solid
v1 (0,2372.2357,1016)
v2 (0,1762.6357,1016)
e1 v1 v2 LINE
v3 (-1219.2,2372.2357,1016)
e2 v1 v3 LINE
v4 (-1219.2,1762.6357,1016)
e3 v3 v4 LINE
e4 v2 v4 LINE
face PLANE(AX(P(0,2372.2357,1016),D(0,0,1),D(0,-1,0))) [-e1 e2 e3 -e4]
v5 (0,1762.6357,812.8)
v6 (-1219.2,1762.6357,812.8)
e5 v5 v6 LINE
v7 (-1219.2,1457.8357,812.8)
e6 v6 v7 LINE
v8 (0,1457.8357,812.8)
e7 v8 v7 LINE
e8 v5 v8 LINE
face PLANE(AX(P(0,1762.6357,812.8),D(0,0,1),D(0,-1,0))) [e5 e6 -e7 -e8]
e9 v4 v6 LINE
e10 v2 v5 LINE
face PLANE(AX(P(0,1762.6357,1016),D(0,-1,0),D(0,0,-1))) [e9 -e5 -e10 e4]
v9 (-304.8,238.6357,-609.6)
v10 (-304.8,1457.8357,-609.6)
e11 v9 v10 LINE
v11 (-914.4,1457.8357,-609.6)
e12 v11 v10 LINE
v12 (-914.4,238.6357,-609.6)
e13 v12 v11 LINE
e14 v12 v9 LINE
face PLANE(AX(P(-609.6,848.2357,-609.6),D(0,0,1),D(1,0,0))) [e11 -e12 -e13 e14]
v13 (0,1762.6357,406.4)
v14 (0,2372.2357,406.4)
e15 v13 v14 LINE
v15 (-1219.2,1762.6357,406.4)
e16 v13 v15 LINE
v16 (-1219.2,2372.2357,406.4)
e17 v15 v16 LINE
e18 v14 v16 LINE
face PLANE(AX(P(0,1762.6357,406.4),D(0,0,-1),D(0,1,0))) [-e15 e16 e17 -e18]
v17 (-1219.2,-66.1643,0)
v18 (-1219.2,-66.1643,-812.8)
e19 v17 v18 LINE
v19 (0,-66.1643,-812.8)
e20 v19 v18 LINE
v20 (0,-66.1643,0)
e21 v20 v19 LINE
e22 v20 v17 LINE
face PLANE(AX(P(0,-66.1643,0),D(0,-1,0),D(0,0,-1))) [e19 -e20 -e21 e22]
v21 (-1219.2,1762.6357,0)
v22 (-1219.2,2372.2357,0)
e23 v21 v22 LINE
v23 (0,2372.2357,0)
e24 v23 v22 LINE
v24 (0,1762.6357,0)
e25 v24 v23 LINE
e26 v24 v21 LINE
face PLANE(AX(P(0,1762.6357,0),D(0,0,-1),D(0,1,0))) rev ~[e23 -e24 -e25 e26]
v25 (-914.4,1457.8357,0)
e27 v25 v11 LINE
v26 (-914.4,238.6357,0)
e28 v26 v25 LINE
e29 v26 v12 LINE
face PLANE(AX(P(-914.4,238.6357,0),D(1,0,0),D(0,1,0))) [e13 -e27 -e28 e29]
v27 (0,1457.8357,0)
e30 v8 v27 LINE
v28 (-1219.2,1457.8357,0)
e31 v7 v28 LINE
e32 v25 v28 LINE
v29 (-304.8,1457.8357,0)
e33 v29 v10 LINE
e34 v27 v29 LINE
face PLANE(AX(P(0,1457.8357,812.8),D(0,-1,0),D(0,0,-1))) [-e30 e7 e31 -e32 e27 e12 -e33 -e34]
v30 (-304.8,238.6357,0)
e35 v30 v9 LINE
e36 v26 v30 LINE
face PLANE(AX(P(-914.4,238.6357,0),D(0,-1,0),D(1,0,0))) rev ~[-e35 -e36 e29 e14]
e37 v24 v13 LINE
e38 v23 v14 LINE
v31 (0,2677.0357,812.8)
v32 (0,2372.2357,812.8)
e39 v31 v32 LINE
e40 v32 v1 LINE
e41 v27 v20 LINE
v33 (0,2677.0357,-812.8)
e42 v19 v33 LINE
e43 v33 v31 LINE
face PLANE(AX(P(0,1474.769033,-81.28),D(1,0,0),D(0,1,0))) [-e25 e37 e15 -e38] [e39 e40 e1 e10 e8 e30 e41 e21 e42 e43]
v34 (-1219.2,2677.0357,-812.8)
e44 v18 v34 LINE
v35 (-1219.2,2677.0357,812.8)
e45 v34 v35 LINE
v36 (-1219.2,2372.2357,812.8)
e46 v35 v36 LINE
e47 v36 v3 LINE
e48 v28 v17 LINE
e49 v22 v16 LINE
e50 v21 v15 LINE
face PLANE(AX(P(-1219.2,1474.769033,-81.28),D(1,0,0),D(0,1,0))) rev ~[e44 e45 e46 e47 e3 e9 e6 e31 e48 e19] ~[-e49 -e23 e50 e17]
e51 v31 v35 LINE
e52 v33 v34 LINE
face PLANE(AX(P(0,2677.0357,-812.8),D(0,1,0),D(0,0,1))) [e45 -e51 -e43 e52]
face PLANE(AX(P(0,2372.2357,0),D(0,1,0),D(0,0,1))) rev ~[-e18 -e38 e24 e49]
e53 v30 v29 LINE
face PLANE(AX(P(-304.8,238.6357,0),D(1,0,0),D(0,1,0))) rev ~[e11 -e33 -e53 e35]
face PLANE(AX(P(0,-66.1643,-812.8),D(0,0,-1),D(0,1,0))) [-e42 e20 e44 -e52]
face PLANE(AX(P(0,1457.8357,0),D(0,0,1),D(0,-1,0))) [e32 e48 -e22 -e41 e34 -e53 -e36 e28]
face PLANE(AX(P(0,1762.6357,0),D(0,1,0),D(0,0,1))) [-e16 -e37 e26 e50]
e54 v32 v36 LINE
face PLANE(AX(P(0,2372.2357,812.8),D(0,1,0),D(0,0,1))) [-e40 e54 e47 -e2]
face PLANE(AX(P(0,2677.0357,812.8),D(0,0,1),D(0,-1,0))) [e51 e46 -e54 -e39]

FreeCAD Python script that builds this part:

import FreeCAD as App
import Part
import Sketcher
Q = App.Units.Quantity

doc = App.newDocument("Part")
params = doc.addObject("Spreadsheet::Sheet", "Params")
for row, (alias, value) in enumerate([
    ("sketch1_width", "108 in"),
    ("sketch1_width2", "12 in"),
    ("sketch1_width3", "24 in"),
    ("sketch1_height", "32 in"),
    ("sketch1_height2", "8 in"),
    ("pad1_length", "48 in"),
    ("sketch2_width", "24 in"),
    ("sketch2_height", "48 in"),
    ("pocket1_length", "24 in"),
    ("sketch3_width", "24 in"),
    ("sketch3_height", "16 in"),
], start=1):
    params.set(f"A{row}", alias)
    params.set(f"B{row}", "=" + value)
    params.setAlias(f"B{row}", alias)

body = doc.addObject("PartDesign::Body", "Body")

# Sketch on YZ plane
sketch1 = body.newObject("Sketcher::SketchObject", "Sketch")
sketch1.AttachmentSupport = (doc.getObject("YZ_Plane"), [""])
sketch1.MapMode = "FlatFace"
sketch1.addGeometry([
    Part.LineSegment(App.Vector(-66, 0, 0), App.Vector(-66, -813, 0)),  # 0
    Part.LineSegment(App.Vector(-66, -813, 0), App.Vector(2677, -813, 0)),  # 1
    Part.LineSegment(App.Vector(2677, -813, 0), App.Vector(2677, 813, 0)),  # 2
    Part.LineSegment(App.Vector(2677, 813, 0), App.Vector(2372, 813, 0)),  # 3
    Part.LineSegment(App.Vector(2372, 813, 0), App.Vector(2372, 1016, 0)),  # 4
    Part.LineSegment(App.Vector(2372, 1016, 0), App.Vector(1763, 1016, 0)),  # 5
    Part.LineSegment(App.Vector(1763, 1016, 0), App.Vector(1763, 813, 0)),  # 6
    Part.LineSegment(App.Vector(1763, 813, 0), App.Vector(1458, 813, 0)),  # 7
    Part.LineSegment(App.Vector(1458, 813, 0), App.Vector(1458, 0, 0)),  # 8
    Part.LineSegment(App.Vector(1458, 0, 0), App.Vector(-66, 0, 0)),  # 9
], False)
sketch1.addConstraint([
    Sketcher.Constraint("Coincident", 0, 2, 1, 1),
    Sketcher.Constraint("Coincident", 1, 2, 2, 1),
    Sketcher.Constraint("Coincident", 2, 2, 3, 1),
    Sketcher.Constraint("Coincident", 3, 2, 4, 1),
    Sketcher.Constraint("Coincident", 4, 2, 5, 1),
    Sketcher.Constraint("Coincident", 5, 2, 6, 1),
    Sketcher.Constraint("Coincident", 6, 2, 7, 1),
    Sketcher.Constraint("Coincident", 7, 2, 8, 1),
    Sketcher.Constraint("Coincident", 8, 2, 9, 1),
    Sketcher.Constraint("Coincident", 9, 2, 0, 1),
    Sketcher.Constraint("Vertical", 0),
    Sketcher.Constraint("Horizontal", 1),
    Sketcher.Constraint("Vertical", 2),
    Sketcher.Constraint("Horizontal", 3),
    Sketcher.Constraint("Vertical", 4),
    Sketcher.Constraint("Horizontal", 5),
    Sketcher.Constraint("Vertical", 6),
    Sketcher.Constraint("Horizontal", 7),
    Sketcher.Constraint("Vertical", 8),
    Sketcher.Constraint("Horizontal", 9),
    Sketcher.Constraint("PointOnObject", 8, 2, -1),
    Sketcher.Constraint("Horizontal", 3, 2, 6, 2),
    Sketcher.Constraint("Equal", 3, 7),
    Sketcher.Constraint("Equal", 0, 8),
    Sketcher.Constraint("DistanceX", 1, 1, 1, 2, Q("108 in")),
    Sketcher.Constraint("DistanceX", 3, 2, 3, 1, Q("12 in")),
    Sketcher.Constraint("DistanceX", 5, 2, 5, 1, Q("24 in")),
    Sketcher.Constraint("DistanceY", 0, 2, 0, 1, Q("32 in")),
    Sketcher.Constraint("DistanceY", 4, 1, 4, 2, Q("8 in")),
    Sketcher.Constraint("DistanceX", 0, 2, -1, 1, 66.1643),
])
sketch1.setExpression("Constraints[24]", "Params.sketch1_width")
sketch1.setExpression("Constraints[25]", "Params.sketch1_width2")
sketch1.setExpression("Constraints[26]", "Params.sketch1_width3")
sketch1.setExpression("Constraints[27]", "Params.sketch1_height")
sketch1.setExpression("Constraints[28]", "Params.sketch1_height2")
pad1 = body.newObject("PartDesign::Pad", "Pad")
pad1.Profile = sketch1
pad1.setExpression("Length", "Params.pad1_length")
pad1.Reversed = True

# Sketch on XY plane
sketch2 = body.newObject("Sketcher::SketchObject", "Sketch001")
sketch2.AttachmentSupport = (doc.getObject("XY_Plane"), [""])
sketch2.MapMode = "FlatFace"
sketch2.addGeometry([
    Part.LineSegment(App.Vector(-914, 1458, 0), App.Vector(-914, 239, 0)),
    Part.LineSegment(App.Vector(-914, 239, 0), App.Vector(-305, 239, 0)),
    Part.LineSegment(App.Vector(-305, 239, 0), App.Vector(-305, 1458, 0)),
    Part.LineSegment(App.Vector(-305, 1458, 0), App.Vector(-914, 1458, 0)),
], False)
sketch2.addConstraint([
    Sketcher.Constraint("Coincident", 0, 2, 1, 1),
    Sketcher.Constraint("Coincident", 1, 2, 2, 1),
    Sketcher.Constraint("Coincident", 2, 2, 3, 1),
    Sketcher.Constraint("Coincident", 3, 2, 0, 1),
    Sketcher.Constraint("Vertical", 0),
    Sketcher.Constraint("Horizontal", 1),
    Sketcher.Constraint("Vertical", 2),
    Sketcher.Constraint("Horizontal", 3),
    Sketcher.Constraint("DistanceX", 1, 1, 1, 2, Q("24 in")),
    Sketcher.Constraint("DistanceY", 0, 2, 0, 1, Q("48 in")),
    Sketcher.Constraint("DistanceX", 0, 2, -1, 1, Q("36 in")),
    Sketcher.Constraint("DistanceY", -1, 1, 0, 2, 238.6357),
])
sketch2.setExpression("Constraints[8]", "Params.sketch2_width")
sketch2.setExpression("Constraints[9]", "Params.sketch2_height")
pocket1 = body.newObject("PartDesign::Pocket", "Pocket")
pocket1.Profile = sketch2
pocket1.setExpression("Length", "Params.pocket1_length")

# Sketch on YZ plane
sketch3 = body.newObject("Sketcher::SketchObject", "Sketch002")
sketch3.AttachmentSupport = (doc.getObject("YZ_Plane"), [""])
sketch3.MapMode = "FlatFace"
sketch3.addGeometry([
    Part.LineSegment(App.Vector(1763, 406, 0), App.Vector(1763, 0, 0)),
    Part.LineSegment(App.Vector(1763, 0, 0), App.Vector(2372, 0, 0)),
    Part.LineSegment(App.Vector(2372, 0, 0), App.Vector(2372, 406, 0)),
    Part.LineSegment(App.Vector(2372, 406, 0), App.Vector(1763, 406, 0)),
], False)
sketch3.addConstraint([
    Sketcher.Constraint("Coincident", 0, 2, 1, 1),
    Sketcher.Constraint("Coincident", 1, 2, 2, 1),
    Sketcher.Constraint("Coincident", 2, 2, 3, 1),
    Sketcher.Constraint("Coincident", 3, 2, 0, 1),
    Sketcher.Constraint("Vertical", 0),
    Sketcher.Constraint("Horizontal", 1),
    Sketcher.Constraint("Vertical", 2),
    Sketcher.Constraint("Horizontal", 3),
    Sketcher.Constraint("PointOnObject", 0, 2, -1),
    Sketcher.Constraint("DistanceX", 1, 1, 1, 2, Q("24 in")),
    Sketcher.Constraint("DistanceY", 0, 2, 0, 1, Q("16 in")),
    Sketcher.Constraint("DistanceX", -1, 1, 0, 2, 1762.6357),
])
sketch3.setExpression("Constraints[9]", "Params.sketch3_width")
sketch3.setExpression("Constraints[10]", "Params.sketch3_height")
pocket2 = body.newObject("PartDesign::Pocket", "Pocket001")
pocket2.Profile = sketch3
pocket2.Type = "ThroughAll"

doc.recompute()
